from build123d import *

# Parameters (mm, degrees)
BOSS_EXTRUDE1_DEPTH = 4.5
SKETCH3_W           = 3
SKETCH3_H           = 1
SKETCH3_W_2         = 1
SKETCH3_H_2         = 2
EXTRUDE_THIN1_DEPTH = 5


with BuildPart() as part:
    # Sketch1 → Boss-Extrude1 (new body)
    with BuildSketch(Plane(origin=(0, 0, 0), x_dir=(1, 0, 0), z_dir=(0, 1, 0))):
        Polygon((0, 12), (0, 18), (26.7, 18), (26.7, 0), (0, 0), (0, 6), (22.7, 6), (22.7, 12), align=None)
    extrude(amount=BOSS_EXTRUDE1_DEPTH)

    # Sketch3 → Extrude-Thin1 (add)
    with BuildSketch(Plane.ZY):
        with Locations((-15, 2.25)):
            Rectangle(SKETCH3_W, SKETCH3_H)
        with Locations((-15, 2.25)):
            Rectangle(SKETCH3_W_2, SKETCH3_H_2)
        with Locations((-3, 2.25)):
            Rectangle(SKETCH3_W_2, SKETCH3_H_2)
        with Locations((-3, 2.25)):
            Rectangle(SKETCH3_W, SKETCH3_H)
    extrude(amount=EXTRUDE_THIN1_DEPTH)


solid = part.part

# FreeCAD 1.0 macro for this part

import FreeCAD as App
import Part
import Sketcher

V = App.Vector
Q = App.Units.Quantity

doc = App.newDocument("Part")
body = doc.addObject("PartDesign::Body", "Body")

sketch1 = doc.addObject("Sketcher::SketchObject", "Sketch")
body.addObject(sketch1)
sketch1.AttachmentSupport = (doc.XZ_Plane, [""])
sketch1.MapMode = "FlatFace"
sketch1.addGeometry([
    Part.LineSegment(V(0, -18, 0), V(0, -12, 0)),
    Part.LineSegment(V(0, -12, 0), V(23, -12, 0)),
    Part.LineSegment(V(23, -12, 0), V(23, -6, 0)),
    Part.LineSegment(V(23, -6, 0), V(0, -6, 0)),
    Part.LineSegment(V(0, -6, 0), V(0, 0, 0)),
    Part.LineSegment(V(0, 0, 0), V(27, 0, 0)),
    Part.LineSegment(V(27, 0, 0), V(27, -18, 0)),
    Part.LineSegment(V(27, -18, 0), V(0, -18, 0)),
], False)
sketch1.addConstraint([
    Sketcher.Constraint("Coincident", 0, 2, 1, 1),
    Sketcher.Constraint("Coincident", 1, 2, 2, 1),
    Sketcher.Constraint("Coincident", 2, 2, 3, 1),
    Sketcher.Constraint("Coincident", 3, 2, 4, 1),
    Sketcher.Constraint("Coincident", 4, 2, 5, 1),
    Sketcher.Constraint("Coincident", 5, 2, 6, 1),
    Sketcher.Constraint("Coincident", 6, 2, 7, 1),
    Sketcher.Constraint("Coincident", 7, 2, 0, 1),
    Sketcher.Constraint("Vertical", 0),
    Sketcher.Constraint("Horizontal", 1),
    Sketcher.Constraint("Vertical", 2),
    Sketcher.Constraint("Horizontal", 3),
    Sketcher.Constraint("Vertical", 4),
    Sketcher.Constraint("Horizontal", 5),
    Sketcher.Constraint("Vertical", 6),
    Sketcher.Constraint("Horizontal", 7),
    Sketcher.Constraint("Coincident", 4, 2, -1, 1),
    Sketcher.Constraint("PointOnObject", 0, 2, -2),
    Sketcher.Constraint("Equal", 0, 2),
    Sketcher.Constraint("Equal", 2, 4),
    Sketcher.Constraint("DistanceY", 0, 1, 0, 2, Q("6 mm")),
    Sketcher.Constraint("DistanceX", 1, 1, 1, 2, Q("22.7 mm")),
    Sketcher.Constraint("DistanceX", 5, 1, 5, 2, Q("26.7 mm")),
])
pad1 = doc.addObject("PartDesign::Pad", "Pad")
body.addObject(pad1)
pad1.Profile = sketch1
pad1.Length = 4.5
pad1.Reversed = True

sketch2 = doc.addObject("Sketcher::SketchObject", "Sketch001")
body.addObject(sketch2)
sketch2.AttachmentSupport = (doc.YZ_Plane, [""])
sketch2.MapMode = "FlatFace"
sketch2.addGeometry([
    Part.LineSegment(V(2.8, -16.5, 0), V(1.8, -16.5, 0)),
    Part.LineSegment(V(1.8, -16.5, 0), V(1.8, -15.5, 0)),
    Part.LineSegment(V(1.8, -15.5, 0), V(1.2, -15.5, 0)),
    Part.LineSegment(V(1.2, -15.5, 0), V(1.2, -14.5, 0)),
    Part.LineSegment(V(1.2, -14.5, 0), V(1.8, -14.5, 0)),
    Part.LineSegment(V(1.8, -14.5, 0), V(1.8, -13.5, 0)),
    Part.LineSegment(V(1.8, -13.5, 0), V(2.8, -13.5, 0)),
    Part.LineSegment(V(2.8, -13.5, 0), V(2.8, -14.5, 0)),
    Part.LineSegment(V(2.8, -14.5, 0), V(3.2, -14.5, 0)),
    Part.LineSegment(V(3.2, -14.5, 0), V(3.2, -15.5, 0)),
    Part.LineSegment(V(3.2, -15.5, 0), V(2.8, -15.5, 0)),
    Part.LineSegment(V(2.8, -15.5, 0), V(2.8, -16.5, 0)),
    Part.LineSegment(V(1.8, -3.5, 0), V(1.2, -3.5, 0)),
    Part.LineSegment(V(1.2, -3.5, 0), V(1.2, -2.5, 0)),
    Part.LineSegment(V(1.2, -2.5, 0), V(1.8, -2.5, 0)),
    Part.LineSegment(V(1.8, -2.5, 0), V(1.8, -1.5, 0)),
    Part.LineSegment(V(1.8, -1.5, 0), V(2.8, -1.5, 0)),
    Part.LineSegment(V(2.8, -1.5, 0), V(2.8, -2.5, 0)),
    Part.LineSegment(V(2.8, -2.5, 0), V(3.2, -2.5, 0)),
    Part.LineSegment(V(3.2, -2.5, 0), V(3.2, -3.5, 0)),
    Part.LineSegment(V(3.2, -3.5, 0), V(2.8, -3.5, 0)),
    Part.LineSegment(V(2.8, -3.5, 0), V(2.8, -4.5, 0)),
    Part.LineSegment(V(2.8, -4.5, 0), V(1.8, -4.5, 0)),
    Part.LineSegment(V(1.8, -4.5, 0), V(1.8, -3.5, 0)),
], False)
sketch2.addConstraint([
    Sketcher.Constraint("Coincident", 0, 2, 1, 1),
    Sketcher.Constraint("Coincident", 1, 2, 2, 1),
    Sketcher.Constraint("Coincident", 2, 2, 3, 1),
    Sketcher.Constraint("Coincident", 3, 2, 4, 1),
    Sketcher.Constraint("Coincident", 4, 2, 5, 1),
    Sketcher.Constraint("Coincident", 5, 2, 6, 1),
    Sketcher.Constraint("Coincident", 6, 2, 7, 1),
    Sketcher.Constraint("Coincident", 7, 2, 8, 1),
    Sketcher.Constraint("Coincident", 8, 2, 9, 1),
    Sketcher.Constraint("Coincident", 9, 2, 10, 1),
    Sketcher.Constraint("Coincident", 10, 2, 11, 1),
    Sketcher.Constraint("Coincident", 11, 2, 0, 1),
    Sketcher.Constraint("Coincident", 12, 2, 13, 1),
    Sketcher.Constraint("Coincident", 13, 2, 14, 1),
    Sketcher.Constraint("Coincident", 14, 2, 15, 1),
    Sketcher.Constraint("Coincident", 15, 2, 16, 1),
    Sketcher.Constraint("Coincident", 16, 2, 17, 1),
    Sketcher.Constraint("Coincident", 17, 2, 18, 1),
    Sketcher.Constraint("Coincident", 18, 2, 19, 1),
    Sketcher.Constraint("Coincident", 19, 2, 20, 1),
    Sketcher.Constraint("Coincident", 20, 2, 21, 1),
    Sketcher.Constraint("Coincident", 21, 2, 22, 1),
    Sketcher.Constraint("Coincident", 22, 2, 23, 1),
    Sketcher.Constraint("Coincident", 23, 2, 12, 1),
    Sketcher.Constraint("Horizontal", 0),
    Sketcher.Constraint("Vertical", 1),
    Sketcher.Constraint("Horizontal", 2),
    Sketcher.Constraint("Vertical", 3),
    Sketcher.Constraint("Horizontal", 4),
    Sketcher.Constraint("Vertical", 5),
    Sketcher.Constraint("Horizontal", 6),
    Sketcher.Constraint("Vertical", 7),
    Sketcher.Constraint("Horizontal", 8),
    Sketcher.Constraint("Vertical", 9),
    Sketcher.Constraint("Horizontal", 10),
    Sketcher.Constraint("Vertical", 11),
    Sketcher.Constraint("Horizontal", 12),
    Sketcher.Constraint("Vertical", 13),
    Sketcher.Constraint("Horizontal", 14),
    Sketcher.Constraint("Vertical", 15),
    Sketcher.Constraint("Horizontal", 16),
    Sketcher.Constraint("Vertical", 17),
    Sketcher.Constraint("Horizontal", 18),
    Sketcher.Constraint("Vertical", 19),
    Sketcher.Constraint("Horizontal", 20),
    Sketcher.Constraint("Vertical", 21),
    Sketcher.Constraint("Horizontal", 22),
    Sketcher.Constraint("Vertical", 23),
    Sketcher.Constraint("Horizontal", 4, 2, 7, 2),
    Sketcher.Constraint("Horizontal", 2, 2, 9, 2),
    Sketcher.Constraint("Horizontal", 14, 2, 17, 2),
    Sketcher.Constraint("Horizontal", 12, 2, 19, 2),
    Sketcher.Constraint("Vertical", 1, 2, 4, 2),
    Sketcher.Constraint("Vertical", 7, 2, 10, 2),
    Sketcher.Constraint("Vertical", 3, 2, 12, 2),
    Sketcher.Constraint("Vertical", 5, 2, 14, 2),
    Sketcher.Constraint("Vertical", 11, 2, 16, 2),
    Sketcher.Constraint("Vertical", 9, 2, 18, 2),
    Sketcher.Constraint("Vertical", 17, 2, 20, 2),
    Sketcher.Constraint("Vertical", 15, 2, 22, 2),
    Sketcher.Constraint("Equal", 4, 8),
    Sketcher.Constraint("Equal", 22, 1),
    Sketcher.Constraint("Equal", 1, 3),
    Sketcher.Constraint("Equal", 3, 5),
    Sketcher.Constraint("Equal", 11, 13),
    Sketcher.Constraint("Equal", 13, 15),
    Sketcher.Constraint("Equal", 19, 21),
    Sketcher.Constraint("DistanceX", 0, 2, 0, 1, Q("1 mm")),
    Sketcher.Constraint("DistanceX", 2, 2, 2, 1, Q("0.5 mm")),
    Sketcher.Constraint("DistanceY", 5, 2, 12, 2, Q("10 mm")),
    Sketcher.Constraint("DistanceY", 0, 2, -1, 1, Q("16.5 mm")),
    Sketcher.Constraint("DistanceX", -1, 1, 0, 2, Q("1.75 mm")),
])
pad2 = doc.addObject("PartDesign::Pad", "Pad001")
body.addObject(pad2)
pad2.Profile = sketch2
pad2.Length = 5
pad2.Reversed = True

doc.recompute()
